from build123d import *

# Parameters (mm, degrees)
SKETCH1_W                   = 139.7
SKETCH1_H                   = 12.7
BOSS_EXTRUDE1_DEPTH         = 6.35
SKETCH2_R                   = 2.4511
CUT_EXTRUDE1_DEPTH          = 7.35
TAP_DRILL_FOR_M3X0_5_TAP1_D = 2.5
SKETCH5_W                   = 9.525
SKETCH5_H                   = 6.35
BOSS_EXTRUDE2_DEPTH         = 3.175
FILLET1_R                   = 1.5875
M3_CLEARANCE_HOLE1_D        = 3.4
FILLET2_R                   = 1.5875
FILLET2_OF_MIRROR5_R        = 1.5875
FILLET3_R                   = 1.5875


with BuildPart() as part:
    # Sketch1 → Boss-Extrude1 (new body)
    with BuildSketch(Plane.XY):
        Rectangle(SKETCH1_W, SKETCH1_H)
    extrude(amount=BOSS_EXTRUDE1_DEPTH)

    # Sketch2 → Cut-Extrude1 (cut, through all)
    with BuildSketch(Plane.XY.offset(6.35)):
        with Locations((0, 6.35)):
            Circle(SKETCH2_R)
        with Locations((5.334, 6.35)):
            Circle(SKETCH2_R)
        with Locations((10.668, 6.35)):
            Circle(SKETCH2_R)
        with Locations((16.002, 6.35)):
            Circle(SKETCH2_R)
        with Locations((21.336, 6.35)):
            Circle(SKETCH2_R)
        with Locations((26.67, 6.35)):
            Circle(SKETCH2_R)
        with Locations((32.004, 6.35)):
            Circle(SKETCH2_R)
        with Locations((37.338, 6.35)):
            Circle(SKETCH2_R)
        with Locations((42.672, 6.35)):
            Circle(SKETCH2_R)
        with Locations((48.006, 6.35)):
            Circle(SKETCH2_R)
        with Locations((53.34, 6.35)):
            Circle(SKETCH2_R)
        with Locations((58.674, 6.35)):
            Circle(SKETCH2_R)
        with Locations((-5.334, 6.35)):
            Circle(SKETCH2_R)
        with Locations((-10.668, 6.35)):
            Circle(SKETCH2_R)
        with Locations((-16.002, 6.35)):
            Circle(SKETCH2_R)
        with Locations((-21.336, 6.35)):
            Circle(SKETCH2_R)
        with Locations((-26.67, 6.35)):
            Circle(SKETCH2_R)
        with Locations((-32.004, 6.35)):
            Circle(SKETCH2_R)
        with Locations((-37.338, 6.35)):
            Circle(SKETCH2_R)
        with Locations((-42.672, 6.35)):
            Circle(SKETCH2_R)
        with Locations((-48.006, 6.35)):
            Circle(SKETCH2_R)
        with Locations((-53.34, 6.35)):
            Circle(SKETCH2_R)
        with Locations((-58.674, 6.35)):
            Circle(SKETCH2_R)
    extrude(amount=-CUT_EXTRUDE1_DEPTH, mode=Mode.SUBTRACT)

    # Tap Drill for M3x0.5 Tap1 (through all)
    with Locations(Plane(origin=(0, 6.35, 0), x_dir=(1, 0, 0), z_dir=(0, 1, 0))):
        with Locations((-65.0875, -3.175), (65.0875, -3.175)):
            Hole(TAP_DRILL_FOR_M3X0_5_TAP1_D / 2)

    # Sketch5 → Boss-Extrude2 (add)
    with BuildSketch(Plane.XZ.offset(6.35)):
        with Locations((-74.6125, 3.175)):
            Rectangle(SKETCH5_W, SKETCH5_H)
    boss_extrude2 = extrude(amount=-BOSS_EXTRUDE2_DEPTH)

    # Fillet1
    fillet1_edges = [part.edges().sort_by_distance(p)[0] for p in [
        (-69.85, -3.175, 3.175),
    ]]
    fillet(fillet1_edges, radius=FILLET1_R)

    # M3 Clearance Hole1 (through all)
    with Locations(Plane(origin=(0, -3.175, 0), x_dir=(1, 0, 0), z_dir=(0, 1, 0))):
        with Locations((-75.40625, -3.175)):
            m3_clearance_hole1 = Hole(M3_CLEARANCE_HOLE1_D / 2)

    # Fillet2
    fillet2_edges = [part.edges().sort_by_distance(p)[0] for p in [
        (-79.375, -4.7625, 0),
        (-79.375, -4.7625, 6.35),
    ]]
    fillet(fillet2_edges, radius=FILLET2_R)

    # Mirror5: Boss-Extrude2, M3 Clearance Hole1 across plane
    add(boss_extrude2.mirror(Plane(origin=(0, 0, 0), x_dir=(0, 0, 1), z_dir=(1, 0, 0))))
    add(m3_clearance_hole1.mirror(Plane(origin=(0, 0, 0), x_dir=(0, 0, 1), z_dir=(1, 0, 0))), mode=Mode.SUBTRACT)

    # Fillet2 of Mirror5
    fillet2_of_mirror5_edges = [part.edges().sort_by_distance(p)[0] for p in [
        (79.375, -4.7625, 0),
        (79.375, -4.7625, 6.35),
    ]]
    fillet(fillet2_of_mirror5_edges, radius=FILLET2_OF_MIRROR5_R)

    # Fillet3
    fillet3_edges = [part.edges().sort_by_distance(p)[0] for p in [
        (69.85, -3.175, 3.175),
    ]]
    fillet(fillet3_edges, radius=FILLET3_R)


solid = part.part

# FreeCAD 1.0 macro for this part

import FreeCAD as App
import Part
import Sketcher
from FreeCAD import Vector
Q = App.Units.Quantity


def edges_at(feature, points):
    """Names of the edges that pass closest to the given points."""
    edges = feature.Shape.Edges
    near = lambda p: min(range(len(edges)), key=lambda i: edges[i].distToShape(Part.Vertex(*p))[0])
    return sorted({f"Edge{near(p) + 1}" for p in points})


def add_polygon(sketch, points):
    """Adds a closed chain of lines whose ends are joined by coincident constraints."""
    first, n = sketch.GeometryCount, len(points)
    for a, b in zip(points, points[1:] + points[:1]):
        sketch.addGeometry(Part.LineSegment(App.Vector(*a, 0), App.Vector(*b, 0)), False)
    for i in range(n):
        sketch.addConstraint(Sketcher.Constraint("Coincident", first + i, 2, first + (i + 1) % n, 1))

doc = App.newDocument("Part")
body = doc.addObject("PartDesign::Body", "Body")

# Sketch on XY plane
sketch1 = body.newObject("Sketcher::SketchObject", "Sketch")
sketch1.AttachmentSupport = (doc.getObject("XY_Plane"), [""])
sketch1.MapMode = "FlatFace"
add_polygon(sketch1, [(-69.85, 6.35), (-69.85, -6.35), (69.85, -6.35), (69.85, 6.35)])  # lines 0-3
sketch1.addConstraint([
    Sketcher.Constraint("Vertical", 0),
    Sketcher.Constraint("Horizontal", 1),
    Sketcher.Constraint("Vertical", 2),
    Sketcher.Constraint("Horizontal", 3),
    Sketcher.Constraint("Symmetric", 0, 2, 2, 2, -1, 1),
    Sketcher.Constraint("DistanceX", 1, 1, 1, 2, Q("5.5 in")),
    Sketcher.Constraint("DistanceY", 0, 2, 0, 1, Q("0.5 in")),
])
pad1 = body.newObject("PartDesign::Pad", "Pad")
pad1.Profile = sketch1
pad1.Length = Q("0.25 in")

# Sketch on XY plane
sketch2 = body.newObject("Sketcher::SketchObject", "Sketch001")
sketch2.AttachmentSupport = (doc.getObject("XY_Plane"), [""])
sketch2.MapMode = "FlatFace"
sketch2.AttachmentOffset = App.Placement(Vector(0, 0, 0.25 * 25.4), App.Rotation())
sketch2.addGeometry([
    Part.Circle(Vector(0, 6.35, 0), Vector(0, 0, 1), 2.4511),  # 0
    Part.Circle(Vector(5.334, 6.35, 0), Vector(0, 0, 1), 2.4511),  # 1
    Part.Circle(Vector(10.668, 6.35, 0), Vector(0, 0, 1), 2.4511),  # 2
    Part.Circle(Vector(16.002, 6.35, 0), Vector(0, 0, 1), 2.4511),  # 3
    Part.Circle(Vector(21.336, 6.35, 0), Vector(0, 0, 1), 2.4511),  # 4
    Part.Circle(Vector(26.67, 6.35, 0), Vector(0, 0, 1), 2.4511),  # 5
    Part.Circle(Vector(32.004, 6.35, 0), Vector(0, 0, 1), 2.4511),  # 6
    Part.Circle(Vector(37.338, 6.35, 0), Vector(0, 0, 1), 2.4511),  # 7
    Part.Circle(Vector(42.672, 6.35, 0), Vector(0, 0, 1), 2.4511),  # 8
    Part.Circle(Vector(48.006, 6.35, 0), Vector(0, 0, 1), 2.4511),  # 9
    Part.Circle(Vector(53.34, 6.35, 0), Vector(0, 0, 1), 2.4511),  # 10
    Part.Circle(Vector(58.674, 6.35, 0), Vector(0, 0, 1), 2.4511),  # 11
    Part.Circle(Vector(-5.334, 6.35, 0), Vector(0, 0, 1), 2.4511),  # 12
    Part.Circle(Vector(-10.668, 6.35, 0), Vector(0, 0, 1), 2.4511),  # 13
    Part.Circle(Vector(-16.002, 6.35, 0), Vector(0, 0, 1), 2.4511),  # 14
    Part.Circle(Vector(-21.336, 6.35, 0), Vector(0, 0, 1), 2.4511),  # 15
    Part.Circle(Vector(-26.67, 6.35, 0), Vector(0, 0, 1), 2.4511),  # 16
    Part.Circle(Vector(-32.004, 6.35, 0), Vector(0, 0, 1), 2.4511),  # 17
    Part.Circle(Vector(-37.338, 6.35, 0), Vector(0, 0, 1), 2.4511),  # 18
    Part.Circle(Vector(-42.672, 6.35, 0), Vector(0, 0, 1), 2.4511),  # 19
    Part.Circle(Vector(-48.006, 6.35, 0), Vector(0, 0, 1), 2.4511),  # 20
    Part.Circle(Vector(-53.34, 6.35, 0), Vector(0, 0, 1), 2.4511),  # 21
    Part.Circle(Vector(-58.674, 6.35, 0), Vector(0, 0, 1), 2.4511),  # 22
], False)
sketch2.addConstraint([
    Sketcher.Constraint("Equal", 0, 1),
    Sketcher.Constraint("Equal", 1, 2),
    Sketcher.Constraint("Equal", 2, 3),
    Sketcher.Constraint("Equal", 3, 4),
    Sketcher.Constraint("Equal", 4, 5),
    Sketcher.Constraint("Equal", 5, 6),
    Sketcher.Constraint("Equal", 6, 7),
    Sketcher.Constraint("Equal", 7, 8),
    Sketcher.Constraint("Equal", 8, 9),
    Sketcher.Constraint("Equal", 9, 10),
    Sketcher.Constraint("Equal", 10, 11),
    Sketcher.Constraint("Equal", 11, 12),
    Sketcher.Constraint("Equal", 12, 13),
    Sketcher.Constraint("Equal", 13, 14),
    Sketcher.Constraint("Equal", 14, 15),
    Sketcher.Constraint("Equal", 15, 16),
    Sketcher.Constraint("Equal", 16, 17),
    Sketcher.Constraint("Equal", 17, 18),
    Sketcher.Constraint("Equal", 18, 19),
    Sketcher.Constraint("Equal", 19, 20),
    Sketcher.Constraint("Equal", 20, 21),
    Sketcher.Constraint("Equal", 21, 22),
    Sketcher.Constraint("Symmetric", 1, 3, 12, 3, -2),
    Sketcher.Constraint("Symmetric", 2, 3, 13, 3, -2),
    Sketcher.Constraint("Symmetric", 3, 3, 14, 3, -2),
    Sketcher.Constraint("Symmetric", 4, 3, 15, 3, -2),
    Sketcher.Constraint("Symmetric", 5, 3, 16, 3, -2),
    Sketcher.Constraint("Symmetric", 6, 3, 17, 3, -2),
    Sketcher.Constraint("Symmetric", 7, 3, 18, 3, -2),
    Sketcher.Constraint("Symmetric", 8, 3, 19, 3, -2),
    Sketcher.Constraint("Symmetric", 9, 3, 20, 3, -2),
    Sketcher.Constraint("Symmetric", 10, 3, 21, 3, -2),
    Sketcher.Constraint("Symmetric", 11, 3, 22, 3, -2),
    Sketcher.Constraint("PointOnObject", 0, 3, -2),
    Sketcher.Constraint("Horizontal", 0, 3, 1, 3),
    Sketcher.Constraint("Horizontal", 1, 3, 2, 3),
    Sketcher.Constraint("Horizontal", 2, 3, 3, 3),
    Sketcher.Constraint("Horizontal", 3, 3, 4, 3),
    Sketcher.Constraint("Horizontal", 4, 3, 5, 3),
    Sketcher.Constraint("Horizontal", 5, 3, 6, 3),
    Sketcher.Constraint("Horizontal", 6, 3, 7, 3),
    Sketcher.Constraint("Horizontal", 7, 3, 8, 3),
    Sketcher.Constraint("Horizontal", 8, 3, 9, 3),
    Sketcher.Constraint("Horizontal", 9, 3, 10, 3),
    Sketcher.Constraint("Horizontal", 10, 3, 11, 3),
    Sketcher.Constraint("Diameter", 0, Q("0.193 in")),
    Sketcher.Constraint("DistanceX", -1, 1, 10, 3, Q("2.1 in")),
    Sketcher.Constraint("DistanceY", -1, 1, 0, 3, Q("0.25 in")),
    Sketcher.Constraint("DistanceX", -1, 1, 1, 3, Q("0.21 in")),
    Sketcher.Constraint("DistanceX", -1, 1, 2, 3, Q("0.42 in")),
    Sketcher.Constraint("DistanceX", -1, 1, 3, 3, Q("0.63 in")),
    Sketcher.Constraint("DistanceX", -1, 1, 4, 3, Q("0.84 in")),
    Sketcher.Constraint("DistanceX", -1, 1, 5, 3, Q("1.05 in")),
    Sketcher.Constraint("DistanceX", -1, 1, 6, 3, Q("1.26 in")),
    Sketcher.Constraint("DistanceX", -1, 1, 7, 3, Q("1.47 in")),
    Sketcher.Constraint("DistanceX", -1, 1, 8, 3, Q("1.68 in")),
    Sketcher.Constraint("DistanceX", -1, 1, 9, 3, Q("1.89 in")),
    Sketcher.Constraint("DistanceX", -1, 1, 11, 3, Q("2.31 in")),
])
pocket1 = body.newObject("PartDesign::Pocket", "Pocket")
pocket1.Profile = sketch2
pocket1.Type = "ThroughAll"

# Sketch on XZ plane
sketch3 = body.newObject("Sketcher::SketchObject", "Sketch002")
sketch3.AttachmentSupport = (doc.getObject("XZ_Plane"), [""])
sketch3.MapMode = "FlatFace"
sketch3.AttachmentOffset = App.Placement(Vector(0, 0, -0.25 * 25.4), App.Rotation())
sketch3.addGeometry([
    Part.Circle(Vector(-65.0875, 3.175, 0), Vector(0, 0, 1), 1.25),
    Part.Circle(Vector(65.0875, 3.175, 0), Vector(0, 0, 1), 1.25),
], False)
sketch3.addConstraint([
    Sketcher.Constraint("Equal", 0, 1),
    Sketcher.Constraint("Symmetric", 0, 3, 1, 3, -2),
    Sketcher.Constraint("Diameter", 0, 2.5),
    Sketcher.Constraint("DistanceX", 0, 3, -1, 1, Q("2.5625 in")),
    Sketcher.Constraint("DistanceY", -1, 1, 0, 3, Q("0.125 in")),
])
doc.recompute()
hole = body.newObject("PartDesign::Hole", "Hole")
hole.Profile = sketch3
hole.ThreadType = "None"
hole.Diameter = 2.5
hole.DepthType = "ThroughAll"
hole.Reversed = True

# Sketch on XZ plane
sketch4 = body.newObject("Sketcher::SketchObject", "Sketch003")
sketch4.AttachmentSupport = (doc.getObject("XZ_Plane"), [""])
sketch4.MapMode = "FlatFace"
sketch4.AttachmentOffset = App.Placement(Vector(0, 0, 0.25 * 25.4), App.Rotation())
add_polygon(sketch4, [(-79.375, 6.35), (-79.375, 0), (-69.85, 0), (-69.85, 6.35)])  # lines 0-3
sketch4.addConstraint([
    Sketcher.Constraint("Vertical", 0),
    Sketcher.Constraint("Horizontal", 1),
    Sketcher.Constraint("Vertical", 2),
    Sketcher.Constraint("Horizontal", 3),
    Sketcher.Constraint("PointOnObject", 0, 2, -1),
    Sketcher.Constraint("DistanceY", 0, 2, 0, 1, Q("0.25 in")),
    Sketcher.Constraint("DistanceX", 1, 1, 1, 2, Q("0.375 in")),
    Sketcher.Constraint("DistanceX", 1, 2, -1, 1, Q("2.75 in")),
])
pad2 = body.newObject("PartDesign::Pad", "Pad001")
pad2.Profile = sketch4
pad2.Length = Q("0.125 in")
pad2.Reversed = True
doc.recompute()

fillet = body.newObject("PartDesign::Fillet", "Fillet")
fillet.Base = (pad2, edges_at(pad2, [(-69.85, -3.175, 3.175)]))
fillet.Radius = Q("0.0625 in")

# Sketch on XZ plane
sketch5 = body.newObject("Sketcher::SketchObject", "Sketch004")
sketch5.AttachmentSupport = (doc.getObject("XZ_Plane"), [""])
sketch5.MapMode = "FlatFace"
sketch5.AttachmentOffset = App.Placement(Vector(0, 0, 0.125 * 25.4), App.Rotation())
sketch5.addGeometry(Part.Circle(Vector(-75.40625, 3.175, 0), Vector(0, 0, 1), 1.7), False)
sketch5.addConstraint([
    Sketcher.Constraint("Diameter", 0, 3.4),
    Sketcher.Constraint("DistanceX", 0, 3, -1, 1, Q("2.96875 in")),
    Sketcher.Constraint("DistanceY", -1, 1, 0, 3, Q("0.125 in")),
])
doc.recompute()
hole2 = body.newObject("PartDesign::Hole", "Hole001")
hole2.Profile = sketch5
hole2.ThreadType = "None"
hole2.Diameter = 3.4
hole2.DepthType = "ThroughAll"
hole2.Reversed = True
doc.recompute()

fillet2 = body.newObject("PartDesign::Fillet", "Fillet001")
fillet2.Base = (hole2, edges_at(hole2, [(-79.375, -4.763, 0), (-79.375, -4.763, 6.35)]))
fillet2.Radius = Q("0.0625 in")
doc.recompute()

mirrored = body.newObject("PartDesign::Mirrored", "Mirrored")
mirrored.Originals = [pad2, hole2]
mirrored.MirrorPlane = (doc.getObject("YZ_Plane"), [""])
body.Tip = mirrored
doc.recompute()

fillet3 = body.newObject("PartDesign::Fillet", "Fillet002")
fillet3.Base = (mirrored, edges_at(mirrored, [(79.375, -4.763, 0), (79.375, -4.763, 6.35)]))
fillet3.Radius = Q("0.0625 in")
doc.recompute()

fillet4 = body.newObject("PartDesign::Fillet", "Fillet003")
fillet4.Base = (fillet3, edges_at(fillet3, [(69.85, -3.175, 3.175)]))
fillet4.Radius = Q("0.0625 in")

doc.recompute()
